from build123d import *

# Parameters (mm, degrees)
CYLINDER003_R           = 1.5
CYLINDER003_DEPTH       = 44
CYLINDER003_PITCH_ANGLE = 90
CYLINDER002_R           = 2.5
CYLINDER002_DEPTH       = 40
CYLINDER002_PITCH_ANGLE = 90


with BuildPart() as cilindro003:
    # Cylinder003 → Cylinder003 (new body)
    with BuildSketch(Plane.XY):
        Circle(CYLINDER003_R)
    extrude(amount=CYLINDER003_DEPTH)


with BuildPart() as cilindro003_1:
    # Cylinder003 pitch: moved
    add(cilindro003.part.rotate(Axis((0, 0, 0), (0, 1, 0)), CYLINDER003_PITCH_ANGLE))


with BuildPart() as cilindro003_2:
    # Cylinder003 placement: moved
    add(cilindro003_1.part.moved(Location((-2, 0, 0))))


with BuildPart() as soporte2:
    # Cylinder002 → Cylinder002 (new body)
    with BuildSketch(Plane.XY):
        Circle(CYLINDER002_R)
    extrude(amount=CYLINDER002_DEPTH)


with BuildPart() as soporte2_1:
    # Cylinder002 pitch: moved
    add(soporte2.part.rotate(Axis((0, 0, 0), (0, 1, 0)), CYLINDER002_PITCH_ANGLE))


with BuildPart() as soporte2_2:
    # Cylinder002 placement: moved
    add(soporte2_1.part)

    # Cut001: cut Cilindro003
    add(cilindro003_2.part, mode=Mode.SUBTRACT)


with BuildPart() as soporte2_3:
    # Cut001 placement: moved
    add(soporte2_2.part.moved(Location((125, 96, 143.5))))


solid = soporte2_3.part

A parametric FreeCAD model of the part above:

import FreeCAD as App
import Part
import Sketcher

V = App.Vector
Q = App.Units.Quantity

doc = App.newDocument("Part")
body = doc.addObject("PartDesign::Body", "Body")

# Sketch on XY plane
sketch1 = body.newObject("Sketcher::SketchObject", "Sketch")
sketch1.AttachmentSupport = (doc.getObject("XY_Plane"), [""])
sketch1.MapMode = "FlatFace"
sketch1.addGeometry(Part.Circle(V(0, 0, 0), V(0, 0, 1), 1.5), False)
sketch1.addConstraint(Sketcher.Constraint("Coincident", 0, 3, -1, 1))
sketch1.addConstraint(Sketcher.Constraint("Diameter", 0, Q("3 mm")))
pad1 = body.newObject("PartDesign::Pad", "Pad")
pad1.Profile = sketch1
pad1.Length = 44
body2 = doc.addObject("PartDesign::Body", "Body001")
doc.recompute()

body.Placement = App.Placement(V(0, 0, 0), App.Rotation(V(0, 1, 0), 90))
boolean = body2.newObject("PartDesign::Boolean", "Boolean")
boolean.Type = "Fuse"
boolean.addObjects([body])
body3 = doc.addObject("PartDesign::Body", "Body002")
doc.recompute()

body2.Placement = App.Placement(V(-2, 0, 0), App.Rotation(V(0, 0, 1), 0))
boolean2 = body3.newObject("PartDesign::Boolean", "Boolean001")
boolean2.Type = "Fuse"
boolean2.addObjects([body2])
body4 = doc.addObject("PartDesign::Body", "Body003")

# Sketch on XY plane
sketch2 = body4.newObject("Sketcher::SketchObject", "Sketch001")
sketch2.AttachmentSupport = (doc.getObject("XY_Plane003"), [""])
sketch2.MapMode = "FlatFace"
sketch2.addGeometry(Part.Circle(V(0, 0, 0), V(0, 0, 1), 2.5), False)
sketch2.addConstraint(Sketcher.Constraint("Coincident", 0, 3, -1, 1))
sketch2.addConstraint(Sketcher.Constraint("Diameter", 0, Q("5 mm")))
pad2 = body4.newObject("PartDesign::Pad", "Pad001")
pad2.Profile = sketch2
pad2.Length = 40
body5 = doc.addObject("PartDesign::Body", "Body004")
doc.recompute()

body4.Placement = App.Placement(V(0, 0, 0), App.Rotation(V(0, 1, 0), 90))
boolean3 = body5.newObject("PartDesign::Boolean", "Boolean002")
boolean3.Type = "Fuse"
boolean3.addObjects([body4])
doc.recompute()

boolean4 = body5.newObject("PartDesign::Boolean", "Boolean003")
boolean4.Type = "Cut"
boolean4.addObjects([body3])
body6 = doc.addObject("PartDesign::Body", "Body005")
doc.recompute()

body5.Placement = App.Placement(V(125, 96, 143.5), App.Rotation(V(0, 0, 1), 0))
boolean5 = body6.newObject("PartDesign::Boolean", "Boolean004")
boolean5.Type = "Fuse"
boolean5.addObjects([body5])

doc.recompute()
